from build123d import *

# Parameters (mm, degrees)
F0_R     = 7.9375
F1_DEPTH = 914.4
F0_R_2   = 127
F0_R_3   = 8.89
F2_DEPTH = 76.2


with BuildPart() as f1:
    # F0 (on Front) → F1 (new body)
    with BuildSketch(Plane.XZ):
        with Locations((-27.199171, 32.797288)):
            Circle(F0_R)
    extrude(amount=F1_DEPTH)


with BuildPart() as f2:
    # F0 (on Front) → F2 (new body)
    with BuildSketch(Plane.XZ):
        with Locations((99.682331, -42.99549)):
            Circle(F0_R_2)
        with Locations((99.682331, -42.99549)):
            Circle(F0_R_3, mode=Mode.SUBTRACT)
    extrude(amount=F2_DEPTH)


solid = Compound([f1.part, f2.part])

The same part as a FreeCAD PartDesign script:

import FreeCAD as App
import Part
import Sketcher
from FreeCAD import Vector
Q = App.Units.Quantity

doc = App.newDocument("Part")
body = doc.addObject("PartDesign::Body", "Body")

sketch1 = body.newObject("Sketcher::SketchObject", "Sketch")
sketch1.AttachmentSupport = (doc.getObject("XZ_Plane"), [""])
sketch1.MapMode = "FlatFace"
sketch1.addGeometry(Part.Circle(Vector(-27, 33, 0), Vector(0, 0, 1), 8), False)
sketch1.addConstraint(Sketcher.Constraint("Diameter", 0, Q("0.625 in")))
sketch1.addConstraint(Sketcher.Constraint("DistanceX", 0, 3, -1, 1, Q("27.199171 mm")))
sketch1.addConstraint(Sketcher.Constraint("DistanceY", -1, 1, 0, 3, Q("32.797288 mm")))
pad1 = body.newObject("PartDesign::Pad", "Pad")
pad1.Profile = sketch1
pad1.Length = Q("36 in")
body2 = doc.addObject("PartDesign::Body", "Body001")

sketch2 = body2.newObject("Sketcher::SketchObject", "Sketch001")
sketch2.AttachmentSupport = (doc.getObject("XZ_Plane001"), [""])
sketch2.MapMode = "FlatFace"
sketch2.addGeometry(Part.Circle(Vector(100, -43, 0), Vector(0, 0, 1), 127), False)
sketch2.addGeometry(Part.Circle(Vector(100, -43, 0), Vector(0, 0, 1), 9), False)
sketch2.addConstraint(Sketcher.Constraint("Coincident", 1, 3, 0, 3))
sketch2.addConstraint(Sketcher.Constraint("Diameter", 0, Q("10 in")))
sketch2.addConstraint(Sketcher.Constraint("Diameter", 1, Q("0.7 in")))
sketch2.addConstraint(Sketcher.Constraint("DistanceX", -1, 1, 0, 3, Q("99.682331 mm")))
sketch2.addConstraint(Sketcher.Constraint("DistanceY", 0, 3, -1, 1, Q("42.99549 mm")))
pad2 = body2.newObject("PartDesign::Pad", "Pad001")
pad2.Profile = sketch2
pad2.Length = Q("3 in")

doc.recompute()
